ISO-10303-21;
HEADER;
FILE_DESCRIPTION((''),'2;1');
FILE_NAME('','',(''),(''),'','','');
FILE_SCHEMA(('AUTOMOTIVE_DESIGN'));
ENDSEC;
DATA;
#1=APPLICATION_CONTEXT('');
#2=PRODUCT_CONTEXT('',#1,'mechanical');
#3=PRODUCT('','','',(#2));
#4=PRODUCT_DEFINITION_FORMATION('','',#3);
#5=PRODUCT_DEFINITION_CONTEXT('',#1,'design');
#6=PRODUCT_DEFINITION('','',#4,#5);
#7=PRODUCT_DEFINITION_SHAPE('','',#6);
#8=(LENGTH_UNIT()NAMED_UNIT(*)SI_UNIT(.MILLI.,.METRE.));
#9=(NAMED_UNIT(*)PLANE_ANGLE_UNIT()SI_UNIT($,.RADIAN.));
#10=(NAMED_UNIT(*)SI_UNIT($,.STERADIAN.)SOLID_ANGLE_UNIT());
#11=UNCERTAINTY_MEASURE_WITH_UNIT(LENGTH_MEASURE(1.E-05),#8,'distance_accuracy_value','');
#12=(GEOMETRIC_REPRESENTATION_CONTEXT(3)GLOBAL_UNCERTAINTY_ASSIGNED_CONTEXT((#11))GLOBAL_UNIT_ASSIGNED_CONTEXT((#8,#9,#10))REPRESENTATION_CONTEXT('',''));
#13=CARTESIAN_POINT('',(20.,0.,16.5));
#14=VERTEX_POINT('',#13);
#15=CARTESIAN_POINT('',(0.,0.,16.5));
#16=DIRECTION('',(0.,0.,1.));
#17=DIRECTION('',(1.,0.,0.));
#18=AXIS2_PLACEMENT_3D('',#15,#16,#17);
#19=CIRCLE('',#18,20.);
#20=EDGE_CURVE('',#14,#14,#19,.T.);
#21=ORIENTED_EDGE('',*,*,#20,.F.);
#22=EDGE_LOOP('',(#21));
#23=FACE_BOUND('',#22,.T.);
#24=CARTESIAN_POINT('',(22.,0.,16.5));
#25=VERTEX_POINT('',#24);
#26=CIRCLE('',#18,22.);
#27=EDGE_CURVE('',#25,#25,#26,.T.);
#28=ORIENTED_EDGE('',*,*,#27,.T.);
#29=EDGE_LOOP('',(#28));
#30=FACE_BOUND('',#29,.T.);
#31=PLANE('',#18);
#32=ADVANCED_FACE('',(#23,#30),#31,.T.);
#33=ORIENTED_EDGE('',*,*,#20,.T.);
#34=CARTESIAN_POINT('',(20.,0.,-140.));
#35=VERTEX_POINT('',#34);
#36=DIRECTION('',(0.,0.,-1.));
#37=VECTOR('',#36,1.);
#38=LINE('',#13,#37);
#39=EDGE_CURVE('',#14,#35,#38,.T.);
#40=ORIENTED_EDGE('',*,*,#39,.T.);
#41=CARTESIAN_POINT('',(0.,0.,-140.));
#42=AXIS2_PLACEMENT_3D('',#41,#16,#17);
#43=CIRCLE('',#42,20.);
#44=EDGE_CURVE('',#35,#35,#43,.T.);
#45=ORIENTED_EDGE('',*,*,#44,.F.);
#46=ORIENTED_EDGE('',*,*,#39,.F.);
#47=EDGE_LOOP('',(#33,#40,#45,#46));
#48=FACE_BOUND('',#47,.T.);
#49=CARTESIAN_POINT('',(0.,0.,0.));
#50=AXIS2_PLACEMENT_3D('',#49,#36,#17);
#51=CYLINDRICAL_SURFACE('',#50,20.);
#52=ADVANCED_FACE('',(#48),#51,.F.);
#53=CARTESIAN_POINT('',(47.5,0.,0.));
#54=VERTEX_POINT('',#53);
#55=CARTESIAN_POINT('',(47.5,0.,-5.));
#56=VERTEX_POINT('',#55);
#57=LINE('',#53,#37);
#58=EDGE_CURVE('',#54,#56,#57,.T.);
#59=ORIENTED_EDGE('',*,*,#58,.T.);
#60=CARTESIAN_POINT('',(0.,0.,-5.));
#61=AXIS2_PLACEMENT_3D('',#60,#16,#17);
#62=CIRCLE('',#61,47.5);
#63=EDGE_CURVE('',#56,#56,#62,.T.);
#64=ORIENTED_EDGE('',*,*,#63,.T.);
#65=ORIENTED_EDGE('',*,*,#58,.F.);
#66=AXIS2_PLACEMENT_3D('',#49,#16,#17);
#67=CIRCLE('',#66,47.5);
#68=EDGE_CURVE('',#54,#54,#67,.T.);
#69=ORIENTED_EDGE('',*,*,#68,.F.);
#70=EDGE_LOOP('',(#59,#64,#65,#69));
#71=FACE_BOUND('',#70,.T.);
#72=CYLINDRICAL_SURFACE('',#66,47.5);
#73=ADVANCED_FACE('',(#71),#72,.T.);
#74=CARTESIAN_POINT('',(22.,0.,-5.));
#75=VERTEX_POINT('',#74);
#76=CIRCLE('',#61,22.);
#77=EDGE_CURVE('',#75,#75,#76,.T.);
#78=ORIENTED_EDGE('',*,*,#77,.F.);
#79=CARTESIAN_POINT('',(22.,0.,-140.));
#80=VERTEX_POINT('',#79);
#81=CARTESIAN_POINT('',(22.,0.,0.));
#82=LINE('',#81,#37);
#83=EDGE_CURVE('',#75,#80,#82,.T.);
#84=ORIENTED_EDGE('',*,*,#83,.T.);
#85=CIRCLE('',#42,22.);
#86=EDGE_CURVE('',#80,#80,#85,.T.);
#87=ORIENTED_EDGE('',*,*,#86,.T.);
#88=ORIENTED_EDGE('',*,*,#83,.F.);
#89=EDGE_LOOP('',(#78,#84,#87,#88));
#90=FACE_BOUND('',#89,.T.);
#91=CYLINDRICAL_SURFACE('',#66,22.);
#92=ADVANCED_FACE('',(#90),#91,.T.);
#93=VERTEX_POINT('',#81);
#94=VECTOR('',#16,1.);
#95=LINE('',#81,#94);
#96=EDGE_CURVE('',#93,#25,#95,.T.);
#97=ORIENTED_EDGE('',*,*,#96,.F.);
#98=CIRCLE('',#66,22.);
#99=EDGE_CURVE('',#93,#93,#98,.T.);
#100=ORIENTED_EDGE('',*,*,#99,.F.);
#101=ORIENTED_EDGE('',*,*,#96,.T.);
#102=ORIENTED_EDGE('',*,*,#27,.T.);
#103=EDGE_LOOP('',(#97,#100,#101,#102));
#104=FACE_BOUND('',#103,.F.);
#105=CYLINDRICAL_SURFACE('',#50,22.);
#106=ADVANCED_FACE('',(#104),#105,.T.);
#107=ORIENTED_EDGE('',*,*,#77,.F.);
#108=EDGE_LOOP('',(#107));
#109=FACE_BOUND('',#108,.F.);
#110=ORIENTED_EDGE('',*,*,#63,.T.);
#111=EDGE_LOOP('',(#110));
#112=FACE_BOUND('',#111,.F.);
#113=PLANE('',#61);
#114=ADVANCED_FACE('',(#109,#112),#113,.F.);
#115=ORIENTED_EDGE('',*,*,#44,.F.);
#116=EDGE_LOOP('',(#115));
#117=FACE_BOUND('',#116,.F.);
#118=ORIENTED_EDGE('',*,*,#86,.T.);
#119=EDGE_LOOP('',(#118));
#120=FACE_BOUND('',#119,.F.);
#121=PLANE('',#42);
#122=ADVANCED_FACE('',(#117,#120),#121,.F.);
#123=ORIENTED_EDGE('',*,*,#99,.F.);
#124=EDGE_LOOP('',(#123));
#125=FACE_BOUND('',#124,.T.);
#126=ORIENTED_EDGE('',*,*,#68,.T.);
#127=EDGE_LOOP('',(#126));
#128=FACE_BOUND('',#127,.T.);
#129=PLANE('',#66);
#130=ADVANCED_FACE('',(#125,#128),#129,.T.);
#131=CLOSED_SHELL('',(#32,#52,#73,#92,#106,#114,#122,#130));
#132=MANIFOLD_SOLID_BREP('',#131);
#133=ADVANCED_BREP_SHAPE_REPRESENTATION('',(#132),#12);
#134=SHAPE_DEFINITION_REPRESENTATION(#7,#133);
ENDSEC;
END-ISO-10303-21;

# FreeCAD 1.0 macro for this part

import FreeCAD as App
import Part
import Sketcher

V = App.Vector

doc = App.newDocument("Part")
body = doc.addObject("PartDesign::Body", "Body")

# Sketch on XY plane
sketch1 = body.newObject("Sketcher::SketchObject", "Sketch")
sketch1.AttachmentSupport = (doc.getObject("XY_Plane"), [""])
sketch1.MapMode = "FlatFace"
sketch1.addGeometry([
    Part.Circle(V(0, 0, 0), V(0, 0, 1), 22),
    Part.Circle(V(0, 0, 0), V(0, 0, 1), 20),
], False)
sketch1.addConstraint([
    Sketcher.Constraint("Coincident", 0, 3, -1, 1),
    Sketcher.Constraint("Coincident", 1, 3, -1, 1),
    Sketcher.Constraint("Diameter", 0, 44.0),
    Sketcher.Constraint("Diameter", 1, 40.0),
])
pad1 = body.newObject("PartDesign::Pad", "Pad")
pad1.Profile = sketch1
pad1.Type = "TwoLengths"
pad1.Length = 16.5
pad1.Length2 = 140

# Sketch on XY plane
sketch2 = body.newObject("Sketcher::SketchObject", "Sketch001")
sketch2.AttachmentSupport = (doc.getObject("XY_Plane"), [""])
sketch2.MapMode = "FlatFace"
sketch2.addGeometry([
    Part.Circle(V(0, 0, 0), V(0, 0, 1), 48),
    Part.Circle(V(0, 0, 0), V(0, 0, 1), 22),
], False)
sketch2.addConstraint([
    Sketcher.Constraint("Coincident", 0, 3, -1, 1),
    Sketcher.Constraint("Coincident", 1, 3, -1, 1),
    Sketcher.Constraint("Diameter", 0, 95.0),
    Sketcher.Constraint("Diameter", 1, 44.0),
])
pad2 = body.newObject("PartDesign::Pad", "Pad001")
pad2.Profile = sketch2
pad2.Length = 5
pad2.Reversed = True

doc.recompute()
